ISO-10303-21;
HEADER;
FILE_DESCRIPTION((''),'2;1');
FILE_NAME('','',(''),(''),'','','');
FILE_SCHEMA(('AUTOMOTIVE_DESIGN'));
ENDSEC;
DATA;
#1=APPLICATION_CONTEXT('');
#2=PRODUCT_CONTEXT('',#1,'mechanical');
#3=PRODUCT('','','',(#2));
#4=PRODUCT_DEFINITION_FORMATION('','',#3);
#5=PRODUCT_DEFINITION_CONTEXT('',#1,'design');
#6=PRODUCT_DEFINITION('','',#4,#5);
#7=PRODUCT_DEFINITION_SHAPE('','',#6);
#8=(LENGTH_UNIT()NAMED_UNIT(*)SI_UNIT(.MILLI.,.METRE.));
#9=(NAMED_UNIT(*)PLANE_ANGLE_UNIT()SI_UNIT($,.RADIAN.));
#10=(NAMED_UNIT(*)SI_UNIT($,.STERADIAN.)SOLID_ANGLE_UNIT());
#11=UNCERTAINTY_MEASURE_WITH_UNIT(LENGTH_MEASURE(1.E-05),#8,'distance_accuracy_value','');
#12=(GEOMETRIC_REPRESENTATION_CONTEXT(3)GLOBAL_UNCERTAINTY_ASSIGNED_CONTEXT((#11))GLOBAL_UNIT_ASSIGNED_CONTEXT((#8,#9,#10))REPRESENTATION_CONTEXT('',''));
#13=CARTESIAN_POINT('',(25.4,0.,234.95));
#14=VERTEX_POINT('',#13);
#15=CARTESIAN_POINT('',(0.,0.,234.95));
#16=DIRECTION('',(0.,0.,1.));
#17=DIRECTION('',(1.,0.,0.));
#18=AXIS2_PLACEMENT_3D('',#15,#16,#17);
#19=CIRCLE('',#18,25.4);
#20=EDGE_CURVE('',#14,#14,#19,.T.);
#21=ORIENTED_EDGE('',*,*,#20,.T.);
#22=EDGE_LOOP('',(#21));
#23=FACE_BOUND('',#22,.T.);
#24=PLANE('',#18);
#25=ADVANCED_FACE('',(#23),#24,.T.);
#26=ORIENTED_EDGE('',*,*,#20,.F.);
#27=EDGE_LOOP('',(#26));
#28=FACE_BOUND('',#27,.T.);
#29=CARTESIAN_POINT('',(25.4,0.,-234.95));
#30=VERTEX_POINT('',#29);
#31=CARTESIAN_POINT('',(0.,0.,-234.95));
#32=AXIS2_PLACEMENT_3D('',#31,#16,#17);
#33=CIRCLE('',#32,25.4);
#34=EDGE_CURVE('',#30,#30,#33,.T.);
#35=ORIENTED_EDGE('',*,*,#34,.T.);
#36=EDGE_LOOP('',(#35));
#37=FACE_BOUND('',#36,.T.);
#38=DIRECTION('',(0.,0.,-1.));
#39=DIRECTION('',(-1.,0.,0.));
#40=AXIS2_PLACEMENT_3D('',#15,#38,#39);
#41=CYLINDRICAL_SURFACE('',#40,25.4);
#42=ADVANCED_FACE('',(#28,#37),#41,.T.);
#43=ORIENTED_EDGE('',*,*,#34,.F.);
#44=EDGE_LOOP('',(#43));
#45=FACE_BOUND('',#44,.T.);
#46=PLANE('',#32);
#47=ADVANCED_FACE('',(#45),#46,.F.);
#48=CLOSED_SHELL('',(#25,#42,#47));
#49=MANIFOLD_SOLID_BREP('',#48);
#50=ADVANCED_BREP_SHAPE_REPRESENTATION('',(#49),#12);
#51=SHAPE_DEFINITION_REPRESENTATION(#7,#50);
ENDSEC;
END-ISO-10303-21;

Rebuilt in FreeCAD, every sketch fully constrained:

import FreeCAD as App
import Part
import Sketcher
Q = App.Units.Quantity

doc = App.newDocument("Part")
body = doc.addObject("PartDesign::Body", "Body")

sketch1 = body.newObject("Sketcher::SketchObject", "Sketch")
sketch1.AttachmentSupport = (doc.getObject("XY_Plane"), [""])
sketch1.MapMode = "FlatFace"
sketch1.addGeometry(Part.Circle(App.Vector(0, 0, 0), App.Vector(0, 0, 1), 25), False)
sketch1.addConstraint(Sketcher.Constraint("Coincident", 0, 3, -1, 1))
sketch1.addConstraint(Sketcher.Constraint("Diameter", 0, Q("2 in")))
pad1 = body.newObject("PartDesign::Pad", "Pad")
pad1.Profile = sketch1
pad1.Length = Q("18.5 in")
pad1.Midplane = True

doc.recompute()
